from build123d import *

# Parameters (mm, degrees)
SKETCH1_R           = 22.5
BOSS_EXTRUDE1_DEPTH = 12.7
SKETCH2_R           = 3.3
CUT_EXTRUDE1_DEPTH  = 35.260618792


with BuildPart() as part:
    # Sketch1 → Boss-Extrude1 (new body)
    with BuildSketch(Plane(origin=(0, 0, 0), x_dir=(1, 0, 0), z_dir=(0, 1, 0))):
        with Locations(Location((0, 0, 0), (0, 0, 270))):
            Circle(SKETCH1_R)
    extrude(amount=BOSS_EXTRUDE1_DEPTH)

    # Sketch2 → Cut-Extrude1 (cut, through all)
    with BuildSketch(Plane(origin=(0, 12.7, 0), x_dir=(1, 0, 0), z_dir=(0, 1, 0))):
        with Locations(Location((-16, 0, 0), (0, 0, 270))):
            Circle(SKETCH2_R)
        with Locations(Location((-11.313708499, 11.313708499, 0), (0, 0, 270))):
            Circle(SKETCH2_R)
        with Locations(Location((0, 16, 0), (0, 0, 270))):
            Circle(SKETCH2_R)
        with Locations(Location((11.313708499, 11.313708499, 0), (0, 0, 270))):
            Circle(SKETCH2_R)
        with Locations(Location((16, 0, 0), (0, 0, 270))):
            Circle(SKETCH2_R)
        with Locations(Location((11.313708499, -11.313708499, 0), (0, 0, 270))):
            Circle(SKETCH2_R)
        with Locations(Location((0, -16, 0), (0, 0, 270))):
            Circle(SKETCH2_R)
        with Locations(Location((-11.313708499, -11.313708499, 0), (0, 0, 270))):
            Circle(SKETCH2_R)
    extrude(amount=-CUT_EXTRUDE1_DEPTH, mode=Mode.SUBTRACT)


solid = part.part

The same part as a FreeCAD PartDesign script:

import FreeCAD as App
import Part
import Sketcher
from FreeCAD import Vector
Q = App.Units.Quantity

doc = App.newDocument("Part")
body = doc.addObject("PartDesign::Body", "Body")

# Sketch on XZ plane
sketch1 = doc.addObject("Sketcher::SketchObject", "Sketch")
body.addObject(sketch1)
sketch1.AttachmentSupport = (doc.XZ_Plane, [""])
sketch1.MapMode = "FlatFace"
sketch1.addGeometry(Part.Circle(Vector(0, 0, 0), Vector(0, 0, 1), 22), False)
sketch1.addConstraint(Sketcher.Constraint("Coincident", 0, 3, -1, 1))
sketch1.addConstraint(Sketcher.Constraint("Diameter", 0, Q("45 mm")))
pad1 = doc.addObject("PartDesign::Pad", "Pad")
body.addObject(pad1)
pad1.Profile = sketch1
pad1.Length = 12.7
pad1.Reversed = True

# Sketch on XZ plane
sketch2 = doc.addObject("Sketcher::SketchObject", "Sketch001")
body.addObject(sketch2)
sketch2.AttachmentSupport = (doc.XZ_Plane, [""])
sketch2.MapMode = "FlatFace"
sketch2.AttachmentOffset = App.Placement(Vector(0, 0, -12.7), App.Rotation())
sketch2.addGeometry(Part.Circle(Vector(-16, 0, 0), Vector(0, 0, 1), 3.3), False)
sketch2.addGeometry(Part.Circle(Vector(-11.3, -11.3, 0), Vector(0, 0, 1), 3.3), False)
sketch2.addGeometry(Part.Circle(Vector(0, -16, 0), Vector(0, 0, 1), 3.3), False)
sketch2.addGeometry(Part.Circle(Vector(11.3, -11.3, 0), Vector(0, 0, 1), 3.3), False)
sketch2.addGeometry(Part.Circle(Vector(16, 0, 0), Vector(0, 0, 1), 3.3), False)
sketch2.addGeometry(Part.Circle(Vector(11.3, 11.3, 0), Vector(0, 0, 1), 3.3), False)
sketch2.addGeometry(Part.Circle(Vector(0, 16, 0), Vector(0, 0, 1), 3.3), False)
sketch2.addGeometry(Part.Circle(Vector(-11.3, 11.3, 0), Vector(0, 0, 1), 3.3), False)
sketch2.addConstraint(Sketcher.Constraint("Equal", 0, 1))
sketch2.addConstraint(Sketcher.Constraint("Equal", 1, 2))
sketch2.addConstraint(Sketcher.Constraint("Equal", 2, 3))
sketch2.addConstraint(Sketcher.Constraint("Equal", 3, 4))
sketch2.addConstraint(Sketcher.Constraint("Equal", 4, 5))
sketch2.addConstraint(Sketcher.Constraint("Equal", 5, 6))
sketch2.addConstraint(Sketcher.Constraint("Equal", 6, 7))
sketch2.addConstraint(Sketcher.Constraint("Symmetric", 0, 3, 4, 3, -1, 1))
sketch2.addConstraint(Sketcher.Constraint("Symmetric", 1, 3, 5, 3, -1, 1))
sketch2.addConstraint(Sketcher.Constraint("Symmetric", 2, 3, 6, 3, -1, 1))
sketch2.addConstraint(Sketcher.Constraint("Symmetric", 3, 3, 7, 3, -1, 1))
sketch2.addConstraint(Sketcher.Constraint("Symmetric", 1, 3, 3, 3, -2))
sketch2.addConstraint(Sketcher.Constraint("PointOnObject", 0, 3, -1))
sketch2.addConstraint(Sketcher.Constraint("PointOnObject", 2, 3, -2))
sketch2.addConstraint(Sketcher.Constraint("Diameter", 0, Q("6.6 mm")))
sketch2.addConstraint(Sketcher.Constraint("DistanceX", 0, 3, -1, 1, Q("16 mm")))
sketch2.addConstraint(Sketcher.Constraint("DistanceY", 2, 3, -1, 1, Q("16 mm")))
sketch2.addConstraint(Sketcher.Constraint("DistanceX", 1, 3, -1, 1, Q("11.313708 mm")))
sketch2.addConstraint(Sketcher.Constraint("DistanceY", 1, 3, -1, 1, Q("11.313708 mm")))
pocket1 = doc.addObject("PartDesign::Pocket", "Pocket")
body.addObject(pocket1)
pocket1.Profile = sketch2
pocket1.Type = "ThroughAll"
pocket1.Reversed = True

doc.recompute()
